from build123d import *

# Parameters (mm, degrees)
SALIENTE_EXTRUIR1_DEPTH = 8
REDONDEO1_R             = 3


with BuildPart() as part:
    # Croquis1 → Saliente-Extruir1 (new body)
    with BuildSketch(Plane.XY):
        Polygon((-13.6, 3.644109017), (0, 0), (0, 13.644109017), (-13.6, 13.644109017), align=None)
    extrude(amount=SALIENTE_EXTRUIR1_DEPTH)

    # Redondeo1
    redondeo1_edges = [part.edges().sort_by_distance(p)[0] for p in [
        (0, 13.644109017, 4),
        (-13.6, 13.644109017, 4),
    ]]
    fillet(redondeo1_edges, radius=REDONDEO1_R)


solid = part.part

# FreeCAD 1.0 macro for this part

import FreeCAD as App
import Part
import Sketcher

V = App.Vector
Q = App.Units.Quantity


def edges_at(feature, points):
    """Names of the edges that pass closest to the given points."""
    edges = feature.Shape.Edges
    near = lambda p: min(range(len(edges)), key=lambda i: edges[i].distToShape(Part.Vertex(*p))[0])
    return sorted({f"Edge{near(p) + 1}" for p in points})


def add_polygon(sketch, points):
    """Adds a closed chain of lines whose ends are joined by coincident constraints."""
    first, n = sketch.GeometryCount, len(points)
    for a, b in zip(points, points[1:] + points[:1]):
        sketch.addGeometry(Part.LineSegment(App.Vector(*a, 0), App.Vector(*b, 0)), False)
    for i in range(n):
        sketch.addConstraint(Sketcher.Constraint("Coincident", first + i, 2, first + (i + 1) % n, 1))

doc = App.newDocument("Part")
body = doc.addObject("PartDesign::Body", "Body")

sketch1 = doc.addObject("Sketcher::SketchObject", "Sketch")
body.addObject(sketch1)
sketch1.AttachmentSupport = (doc.XY_Plane, [""])
sketch1.MapMode = "FlatFace"
add_polygon(sketch1, [(-14, 4), (0, 0), (0, 14), (-14, 14)])
sketch1.addConstraint(Sketcher.Constraint("Vertical", 1))
sketch1.addConstraint(Sketcher.Constraint("Horizontal", 2))
sketch1.addConstraint(Sketcher.Constraint("Vertical", 3))
sketch1.addConstraint(Sketcher.Constraint("Coincident", 0, 2, -1, 1))
sketch1.addConstraint(Sketcher.Constraint("DistanceY", 3, 2, 3, 1, Q("10 mm")))
sketch1.addConstraint(Sketcher.Constraint("Angle", 0, Q("-15 deg")))
sketch1.addConstraint(Sketcher.Constraint("DistanceX", 2, 2, 2, 1, Q("13.6 mm")))
pad1 = doc.addObject("PartDesign::Pad", "Pad")
body.addObject(pad1)
pad1.Profile = sketch1
pad1.Length = 8
doc.recompute()

fillet = doc.addObject("PartDesign::Fillet", "Fillet")
body.addObject(fillet)
fillet.Base = (pad1, edges_at(pad1, [(0, 13.644, 4), (-13.6, 13.644, 4)]))
fillet.Radius = 3

doc.recompute()
